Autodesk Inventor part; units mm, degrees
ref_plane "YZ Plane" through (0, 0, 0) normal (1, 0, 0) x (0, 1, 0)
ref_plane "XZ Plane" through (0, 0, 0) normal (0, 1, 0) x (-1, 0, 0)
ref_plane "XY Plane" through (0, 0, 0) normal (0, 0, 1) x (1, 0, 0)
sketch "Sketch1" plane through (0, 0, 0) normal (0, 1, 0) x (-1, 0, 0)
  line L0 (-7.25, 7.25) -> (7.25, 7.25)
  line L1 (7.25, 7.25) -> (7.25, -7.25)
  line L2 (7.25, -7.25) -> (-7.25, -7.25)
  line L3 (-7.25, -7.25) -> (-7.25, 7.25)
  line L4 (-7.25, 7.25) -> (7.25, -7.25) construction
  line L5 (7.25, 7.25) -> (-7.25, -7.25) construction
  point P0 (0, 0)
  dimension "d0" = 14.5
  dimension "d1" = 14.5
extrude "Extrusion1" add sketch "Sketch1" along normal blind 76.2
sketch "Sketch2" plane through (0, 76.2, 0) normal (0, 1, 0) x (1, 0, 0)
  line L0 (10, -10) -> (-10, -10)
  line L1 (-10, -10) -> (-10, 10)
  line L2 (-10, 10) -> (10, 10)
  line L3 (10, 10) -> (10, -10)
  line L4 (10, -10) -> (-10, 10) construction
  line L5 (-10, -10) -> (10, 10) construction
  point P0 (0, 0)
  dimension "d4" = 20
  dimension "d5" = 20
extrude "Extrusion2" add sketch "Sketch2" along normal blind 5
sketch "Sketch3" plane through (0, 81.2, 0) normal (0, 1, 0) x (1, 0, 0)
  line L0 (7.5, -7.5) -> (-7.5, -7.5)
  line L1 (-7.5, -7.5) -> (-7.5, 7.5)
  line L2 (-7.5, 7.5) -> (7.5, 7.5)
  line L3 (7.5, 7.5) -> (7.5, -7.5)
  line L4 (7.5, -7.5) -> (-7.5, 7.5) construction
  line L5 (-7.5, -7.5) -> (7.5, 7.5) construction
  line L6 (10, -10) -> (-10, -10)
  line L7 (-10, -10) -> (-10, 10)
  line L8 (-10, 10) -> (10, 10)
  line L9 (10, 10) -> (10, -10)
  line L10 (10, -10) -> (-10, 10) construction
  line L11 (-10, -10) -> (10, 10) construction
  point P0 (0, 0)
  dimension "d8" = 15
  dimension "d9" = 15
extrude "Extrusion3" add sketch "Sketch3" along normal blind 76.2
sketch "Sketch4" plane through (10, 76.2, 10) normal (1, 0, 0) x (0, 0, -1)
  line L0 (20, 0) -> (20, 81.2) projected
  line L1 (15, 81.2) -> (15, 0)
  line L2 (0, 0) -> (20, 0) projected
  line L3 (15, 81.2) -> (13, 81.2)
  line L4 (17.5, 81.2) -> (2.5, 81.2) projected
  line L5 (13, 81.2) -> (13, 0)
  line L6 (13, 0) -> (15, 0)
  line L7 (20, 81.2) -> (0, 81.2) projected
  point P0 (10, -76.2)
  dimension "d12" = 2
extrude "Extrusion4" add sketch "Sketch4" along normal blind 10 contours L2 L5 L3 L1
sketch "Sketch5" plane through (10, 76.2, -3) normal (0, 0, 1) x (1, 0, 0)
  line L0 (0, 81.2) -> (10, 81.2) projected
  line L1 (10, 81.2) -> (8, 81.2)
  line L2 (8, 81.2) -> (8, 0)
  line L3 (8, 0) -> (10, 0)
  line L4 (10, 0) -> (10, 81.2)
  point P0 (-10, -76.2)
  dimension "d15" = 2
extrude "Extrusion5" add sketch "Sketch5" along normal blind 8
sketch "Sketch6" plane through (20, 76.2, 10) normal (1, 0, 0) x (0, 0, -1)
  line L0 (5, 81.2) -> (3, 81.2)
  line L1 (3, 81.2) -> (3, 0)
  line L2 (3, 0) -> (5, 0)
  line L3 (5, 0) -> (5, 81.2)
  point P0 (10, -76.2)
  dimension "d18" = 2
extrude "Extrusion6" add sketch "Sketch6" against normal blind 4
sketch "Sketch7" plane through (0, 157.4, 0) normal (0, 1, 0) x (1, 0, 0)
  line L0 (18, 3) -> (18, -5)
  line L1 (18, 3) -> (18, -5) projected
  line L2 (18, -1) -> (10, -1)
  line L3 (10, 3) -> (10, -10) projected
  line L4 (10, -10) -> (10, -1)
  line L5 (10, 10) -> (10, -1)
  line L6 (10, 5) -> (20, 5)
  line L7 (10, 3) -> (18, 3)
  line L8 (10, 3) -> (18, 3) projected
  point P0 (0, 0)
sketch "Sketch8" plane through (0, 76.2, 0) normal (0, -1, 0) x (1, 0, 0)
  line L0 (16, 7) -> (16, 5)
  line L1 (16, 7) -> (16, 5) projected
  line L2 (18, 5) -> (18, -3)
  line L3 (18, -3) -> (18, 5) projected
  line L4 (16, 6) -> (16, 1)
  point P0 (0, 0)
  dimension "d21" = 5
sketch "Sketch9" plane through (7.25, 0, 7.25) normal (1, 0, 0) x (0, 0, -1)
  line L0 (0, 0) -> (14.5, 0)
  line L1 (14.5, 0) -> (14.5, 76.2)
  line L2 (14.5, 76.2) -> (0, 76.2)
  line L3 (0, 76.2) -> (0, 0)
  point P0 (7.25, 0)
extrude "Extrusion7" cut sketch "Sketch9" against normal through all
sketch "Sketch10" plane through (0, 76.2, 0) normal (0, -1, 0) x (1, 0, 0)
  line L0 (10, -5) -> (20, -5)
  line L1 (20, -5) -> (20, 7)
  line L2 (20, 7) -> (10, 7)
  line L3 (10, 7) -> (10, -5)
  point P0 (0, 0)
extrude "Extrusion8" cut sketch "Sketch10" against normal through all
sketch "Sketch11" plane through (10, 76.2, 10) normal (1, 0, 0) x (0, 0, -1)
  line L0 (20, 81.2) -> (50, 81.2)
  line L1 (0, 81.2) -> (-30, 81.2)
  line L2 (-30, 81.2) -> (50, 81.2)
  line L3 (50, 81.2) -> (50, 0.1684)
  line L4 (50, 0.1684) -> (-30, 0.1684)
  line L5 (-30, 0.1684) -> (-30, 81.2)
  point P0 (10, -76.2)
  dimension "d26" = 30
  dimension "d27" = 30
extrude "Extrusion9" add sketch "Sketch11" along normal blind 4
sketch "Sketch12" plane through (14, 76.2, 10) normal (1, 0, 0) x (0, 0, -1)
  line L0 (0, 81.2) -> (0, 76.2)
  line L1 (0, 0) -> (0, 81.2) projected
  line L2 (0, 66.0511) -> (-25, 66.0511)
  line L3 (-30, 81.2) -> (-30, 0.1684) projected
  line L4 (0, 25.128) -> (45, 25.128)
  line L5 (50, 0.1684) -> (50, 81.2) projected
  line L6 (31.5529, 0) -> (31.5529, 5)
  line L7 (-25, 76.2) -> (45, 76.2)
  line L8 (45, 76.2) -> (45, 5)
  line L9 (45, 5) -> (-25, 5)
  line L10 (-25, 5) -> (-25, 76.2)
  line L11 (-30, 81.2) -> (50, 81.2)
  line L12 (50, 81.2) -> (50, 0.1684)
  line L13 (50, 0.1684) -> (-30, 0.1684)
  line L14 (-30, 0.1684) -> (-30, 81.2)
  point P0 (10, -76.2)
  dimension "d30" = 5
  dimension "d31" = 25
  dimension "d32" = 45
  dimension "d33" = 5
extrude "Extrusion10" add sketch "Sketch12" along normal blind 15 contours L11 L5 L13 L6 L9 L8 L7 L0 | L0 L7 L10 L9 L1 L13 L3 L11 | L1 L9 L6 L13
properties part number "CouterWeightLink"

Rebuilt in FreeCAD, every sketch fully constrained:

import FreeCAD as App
import Part
import Sketcher

V = App.Vector
Q = App.Units.Quantity

doc = App.newDocument("Part")
body = doc.addObject("PartDesign::Body", "Body")

# Sketch on XZ plane
sketch1 = doc.addObject("Sketcher::SketchObject", "Sketch")
body.addObject(sketch1)
sketch1.AttachmentSupport = (doc.XZ_Plane, [""])
sketch1.MapMode = "FlatFace"
sketch1.addGeometry([
    Part.LineSegment(V(-7.25, 7.25, 0), V(7.25, 7.25, 0)),
    Part.LineSegment(V(7.25, 7.25, 0), V(7.25, -7.25, 0)),
    Part.LineSegment(V(7.25, -7.25, 0), V(-7.25, -7.25, 0)),
    Part.LineSegment(V(-7.25, -7.25, 0), V(-7.25, 7.25, 0)),
], False)
sketch1.addConstraint([
    Sketcher.Constraint("Coincident", 0, 2, 1, 1),
    Sketcher.Constraint("Coincident", 1, 2, 2, 1),
    Sketcher.Constraint("Coincident", 2, 2, 3, 1),
    Sketcher.Constraint("Coincident", 3, 2, 0, 1),
    Sketcher.Constraint("Horizontal", 0),
    Sketcher.Constraint("Vertical", 1),
    Sketcher.Constraint("Horizontal", 2),
    Sketcher.Constraint("Vertical", 3),
    Sketcher.Constraint("Symmetric", 0, 2, 2, 2, -1, 1),
    Sketcher.Constraint("Equal", 2, 1),
    Sketcher.Constraint("DistanceX", 0, 1, 0, 2, Q("14.5 mm")),
])
pad1 = doc.addObject("PartDesign::Pad", "Pad")
body.addObject(pad1)
pad1.Profile = sketch1
pad1.Length = 76.2
pad1.Reversed = True

# Sketch on XZ plane
sketch2 = doc.addObject("Sketcher::SketchObject", "Sketch001")
body.addObject(sketch2)
sketch2.AttachmentSupport = (doc.XZ_Plane, [""])
sketch2.MapMode = "FlatFace"
sketch2.AttachmentOffset = App.Placement(V(0, 0, -76.2), App.Rotation())
sketch2.addGeometry([
    Part.LineSegment(V(-10, 10, 0), V(10, 10, 0)),
    Part.LineSegment(V(10, 10, 0), V(10, -10, 0)),
    Part.LineSegment(V(10, -10, 0), V(-10, -10, 0)),
    Part.LineSegment(V(-10, -10, 0), V(-10, 10, 0)),
], False)
sketch2.addConstraint([
    Sketcher.Constraint("Coincident", 0, 2, 1, 1),
    Sketcher.Constraint("Coincident", 1, 2, 2, 1),
    Sketcher.Constraint("Coincident", 2, 2, 3, 1),
    Sketcher.Constraint("Coincident", 3, 2, 0, 1),
    Sketcher.Constraint("Horizontal", 0),
    Sketcher.Constraint("Vertical", 1),
    Sketcher.Constraint("Horizontal", 2),
    Sketcher.Constraint("Vertical", 3),
    Sketcher.Constraint("Symmetric", 0, 2, 2, 2, -1, 1),
    Sketcher.Constraint("Equal", 2, 1),
    Sketcher.Constraint("DistanceX", 0, 1, 0, 2, Q("20 mm")),
])
pad2 = doc.addObject("PartDesign::Pad", "Pad001")
body.addObject(pad2)
pad2.Profile = sketch2
pad2.Length = 5
pad2.Reversed = True

# Sketch on XZ plane
sketch3 = doc.addObject("Sketcher::SketchObject", "Sketch002")
body.addObject(sketch3)
sketch3.AttachmentSupport = (doc.XZ_Plane, [""])
sketch3.MapMode = "FlatFace"
sketch3.AttachmentOffset = App.Placement(V(0, 0, -81.2), App.Rotation())
sketch3.addGeometry([
    Part.LineSegment(V(-10, 10, 0), V(10, 10, 0)),  # 0
    Part.LineSegment(V(10, 10, 0), V(10, -10, 0)),  # 1
    Part.LineSegment(V(10, -10, 0), V(-10, -10, 0)),  # 2
    Part.LineSegment(V(-10, -10, 0), V(-10, 10, 0)),  # 3
    Part.LineSegment(V(7.5, -7.5, 0), V(7.5, 7.5, 0)),  # 4
    Part.LineSegment(V(7.5, 7.5, 0), V(-7.5, 7.5, 0)),  # 5
    Part.LineSegment(V(-7.5, 7.5, 0), V(-7.5, -7.5, 0)),  # 6
    Part.LineSegment(V(-7.5, -7.5, 0), V(7.5, -7.5, 0)),  # 7
], False)
sketch3.addConstraint([
    Sketcher.Constraint("Coincident", 0, 2, 1, 1),
    Sketcher.Constraint("Coincident", 1, 2, 2, 1),
    Sketcher.Constraint("Coincident", 2, 2, 3, 1),
    Sketcher.Constraint("Coincident", 3, 2, 0, 1),
    Sketcher.Constraint("Coincident", 4, 2, 5, 1),
    Sketcher.Constraint("Coincident", 5, 2, 6, 1),
    Sketcher.Constraint("Coincident", 6, 2, 7, 1),
    Sketcher.Constraint("Coincident", 7, 2, 4, 1),
    Sketcher.Constraint("Horizontal", 0),
    Sketcher.Constraint("Vertical", 1),
    Sketcher.Constraint("Horizontal", 2),
    Sketcher.Constraint("Vertical", 3),
    Sketcher.Constraint("Vertical", 4),
    Sketcher.Constraint("Horizontal", 5),
    Sketcher.Constraint("Vertical", 6),
    Sketcher.Constraint("Horizontal", 7),
    Sketcher.Constraint("Symmetric", 0, 2, 2, 2, -1, 1),
    Sketcher.Constraint("Symmetric", 4, 2, 6, 2, -1, 1),
    Sketcher.Constraint("Equal", 2, 1),
    Sketcher.Constraint("Equal", 7, 4),
    Sketcher.Constraint("DistanceX", 5, 2, 5, 1, Q("15 mm")),
    Sketcher.Constraint("DistanceX", 0, 1, 0, 2, Q("20 mm")),
])
pad3 = doc.addObject("PartDesign::Pad", "Pad002")
body.addObject(pad3)
pad3.Profile = sketch3
pad3.Length = 76.2
pad3.Reversed = True

# Sketch on YZ plane
sketch4 = doc.addObject("Sketcher::SketchObject", "Sketch003")
body.addObject(sketch4)
sketch4.AttachmentSupport = (doc.YZ_Plane, [""])
sketch4.MapMode = "FlatFace"
sketch4.AttachmentOffset = App.Placement(V(0, 0, 10), App.Rotation())
sketch4.addGeometry([
    Part.LineSegment(V(76.2, -3, 0), V(76.2, -5, 0)),
    Part.LineSegment(V(76.2, -5, 0), V(157.4, -5, 0)),
    Part.LineSegment(V(157.4, -5, 0), V(157.4, -3, 0)),
    Part.LineSegment(V(157.4, -3, 0), V(76.2, -3, 0)),
], False)
sketch4.addConstraint([
    Sketcher.Constraint("Coincident", 0, 2, 1, 1),
    Sketcher.Constraint("Coincident", 1, 2, 2, 1),
    Sketcher.Constraint("Coincident", 2, 2, 3, 1),
    Sketcher.Constraint("Coincident", 3, 2, 0, 1),
    Sketcher.Constraint("Vertical", 0),
    Sketcher.Constraint("Horizontal", 1),
    Sketcher.Constraint("Vertical", 2),
    Sketcher.Constraint("Horizontal", 3),
    Sketcher.Constraint("DistanceY", 0, 2, 0, 1, Q("2 mm")),
    Sketcher.Constraint("DistanceX", 1, 1, 1, 2, Q("81.2 mm")),
    Sketcher.Constraint("DistanceY", 0, 2, -1, 1, Q("5 mm")),
    Sketcher.Constraint("DistanceX", -1, 1, 0, 2, Q("76.2 mm")),
])
pad4 = doc.addObject("PartDesign::Pad", "Pad003")
body.addObject(pad4)
pad4.Profile = sketch4
pad4.Length = 10

# Sketch on XY plane
sketch5 = doc.addObject("Sketcher::SketchObject", "Sketch004")
body.addObject(sketch5)
sketch5.AttachmentSupport = (doc.XY_Plane, [""])
sketch5.MapMode = "FlatFace"
sketch5.AttachmentOffset = App.Placement(V(0, 0, -3), App.Rotation())
sketch5.addGeometry([
    Part.LineSegment(V(20, 157.4, 0), V(18, 157.4, 0)),
    Part.LineSegment(V(18, 157.4, 0), V(18, 76.2, 0)),
    Part.LineSegment(V(18, 76.2, 0), V(20, 76.2, 0)),
    Part.LineSegment(V(20, 76.2, 0), V(20, 157.4, 0)),
], False)
sketch5.addConstraint([
    Sketcher.Constraint("Coincident", 0, 2, 1, 1),
    Sketcher.Constraint("Coincident", 1, 2, 2, 1),
    Sketcher.Constraint("Coincident", 2, 2, 3, 1),
    Sketcher.Constraint("Coincident", 3, 2, 0, 1),
    Sketcher.Constraint("Horizontal", 0),
    Sketcher.Constraint("Vertical", 1),
    Sketcher.Constraint("Horizontal", 2),
    Sketcher.Constraint("Vertical", 3),
    Sketcher.Constraint("DistanceX", 0, 2, 0, 1, Q("2 mm")),
    Sketcher.Constraint("DistanceY", 1, 2, 1, 1, Q("81.2 mm")),
    Sketcher.Constraint("DistanceX", -1, 1, 0, 2, Q("18 mm")),
    Sketcher.Constraint("DistanceY", -1, 1, 0, 2, Q("157.4 mm")),
])
pad5 = doc.addObject("PartDesign::Pad", "Pad004")
body.addObject(pad5)
pad5.Profile = sketch5
pad5.Length = 8

# Sketch on YZ plane
sketch6 = doc.addObject("Sketcher::SketchObject", "Sketch005")
body.addObject(sketch6)
sketch6.AttachmentSupport = (doc.YZ_Plane, [""])
sketch6.MapMode = "FlatFace"
sketch6.AttachmentOffset = App.Placement(V(0, 0, 20), App.Rotation())
sketch6.addGeometry([
    Part.LineSegment(V(76.2, 5, 0), V(157.4, 5, 0)),
    Part.LineSegment(V(157.4, 5, 0), V(157.4, 7, 0)),
    Part.LineSegment(V(157.4, 7, 0), V(76.2, 7, 0)),
    Part.LineSegment(V(76.2, 7, 0), V(76.2, 5, 0)),
], False)
sketch6.addConstraint([
    Sketcher.Constraint("Coincident", 0, 2, 1, 1),
    Sketcher.Constraint("Coincident", 1, 2, 2, 1),
    Sketcher.Constraint("Coincident", 2, 2, 3, 1),
    Sketcher.Constraint("Coincident", 3, 2, 0, 1),
    Sketcher.Constraint("Horizontal", 0),
    Sketcher.Constraint("Vertical", 1),
    Sketcher.Constraint("Horizontal", 2),
    Sketcher.Constraint("Vertical", 3),
    Sketcher.Constraint("DistanceY", 1, 1, 1, 2, Q("2 mm")),
    Sketcher.Constraint("DistanceX", 0, 1, 0, 2, Q("81.2 mm")),
    Sketcher.Constraint("DistanceY", -1, 1, 0, 2, Q("5 mm")),
    Sketcher.Constraint("DistanceX", -1, 1, 0, 2, Q("157.4 mm")),
])
pad6 = doc.addObject("PartDesign::Pad", "Pad005")
body.addObject(pad6)
pad6.Profile = sketch6
pad6.Length = 4
pad6.Reversed = True

# Sketch on YZ plane
sketch7 = doc.addObject("Sketcher::SketchObject", "Sketch006")
body.addObject(sketch7)
sketch7.AttachmentSupport = (doc.YZ_Plane, [""])
sketch7.MapMode = "FlatFace"
sketch7.AttachmentOffset = App.Placement(V(0, 0, 7.25), App.Rotation())
sketch7.addGeometry([
    Part.LineSegment(V(76.2, 7.25, 0), V(0, 7.25, 0)),
    Part.LineSegment(V(0, 7.25, 0), V(0, -7.25, 0)),
    Part.LineSegment(V(0, -7.25, 0), V(76.2, -7.25, 0)),
    Part.LineSegment(V(76.2, -7.25, 0), V(76.2, 7.25, 0)),
], False)
sketch7.addConstraint([
    Sketcher.Constraint("Coincident", 0, 2, 1, 1),
    Sketcher.Constraint("Coincident", 1, 2, 2, 1),
    Sketcher.Constraint("Coincident", 2, 2, 3, 1),
    Sketcher.Constraint("Coincident", 3, 2, 0, 1),
    Sketcher.Constraint("Horizontal", 0),
    Sketcher.Constraint("Vertical", 1),
    Sketcher.Constraint("Horizontal", 2),
    Sketcher.Constraint("Vertical", 3),
    Sketcher.Constraint("Symmetric", 0, 2, 1, 2, -1, 1),
    Sketcher.Constraint("DistanceX", 0, 2, 0, 1, Q("76.2 mm")),
    Sketcher.Constraint("DistanceY", 1, 2, 1, 1, Q("14.5 mm")),
])
pocket1 = doc.addObject("PartDesign::Pocket", "Pocket")
body.addObject(pocket1)
pocket1.Profile = sketch7
pocket1.Type = "ThroughAll"

# Sketch on XZ plane
sketch8 = doc.addObject("Sketcher::SketchObject", "Sketch007")
body.addObject(sketch8)
sketch8.AttachmentSupport = (doc.XZ_Plane, [""])
sketch8.MapMode = "FlatFace"
sketch8.AttachmentOffset = App.Placement(V(0, 0, -76.2), App.Rotation())
sketch8.addGeometry([
    Part.LineSegment(V(10, 7, 0), V(10, -5, 0)),
    Part.LineSegment(V(10, -5, 0), V(20, -5, 0)),
    Part.LineSegment(V(20, -5, 0), V(20, 7, 0)),
    Part.LineSegment(V(20, 7, 0), V(10, 7, 0)),
], False)
sketch8.addConstraint([
    Sketcher.Constraint("Coincident", 0, 2, 1, 1),
    Sketcher.Constraint("Coincident", 1, 2, 2, 1),
    Sketcher.Constraint("Coincident", 2, 2, 3, 1),
    Sketcher.Constraint("Coincident", 3, 2, 0, 1),
    Sketcher.Constraint("Vertical", 0),
    Sketcher.Constraint("Horizontal", 1),
    Sketcher.Constraint("Vertical", 2),
    Sketcher.Constraint("Horizontal", 3),
    Sketcher.Constraint("DistanceX", 1, 1, 1, 2, Q("10 mm")),
    Sketcher.Constraint("DistanceY", 0, 2, 0, 1, Q("12 mm")),
    Sketcher.Constraint("DistanceX", -1, 1, 0, 2, Q("10 mm")),
    Sketcher.Constraint("DistanceY", 0, 2, -1, 1, Q("5 mm")),
])
pocket2 = doc.addObject("PartDesign::Pocket", "Pocket001")
body.addObject(pocket2)
pocket2.Profile = sketch8
pocket2.Type = "ThroughAll"

# Sketch on YZ plane
sketch9 = doc.addObject("Sketcher::SketchObject", "Sketch008")
body.addObject(sketch9)
sketch9.AttachmentSupport = (doc.YZ_Plane, [""])
sketch9.MapMode = "FlatFace"
sketch9.AttachmentOffset = App.Placement(V(0, 0, 10), App.Rotation())
sketch9.addGeometry([
    Part.LineSegment(V(157.4, -40, 0), V(157.4, 40, 0)),
    Part.LineSegment(V(157.4, 40, 0), V(76.3684, 40, 0)),
    Part.LineSegment(V(76.3684, 40, 0), V(76.3684, -40, 0)),
    Part.LineSegment(V(76.3684, -40, 0), V(157.4, -40, 0)),
], False)
sketch9.addConstraint([
    Sketcher.Constraint("Coincident", 0, 2, 1, 1),
    Sketcher.Constraint("Coincident", 1, 2, 2, 1),
    Sketcher.Constraint("Coincident", 2, 2, 3, 1),
    Sketcher.Constraint("Coincident", 3, 2, 0, 1),
    Sketcher.Constraint("Vertical", 0),
    Sketcher.Constraint("Horizontal", 1),
    Sketcher.Constraint("Vertical", 2),
    Sketcher.Constraint("Horizontal", 3),
    Sketcher.Constraint("DistanceY", 0, 1, 0, 2, Q("80 mm")),
    Sketcher.Constraint("DistanceY", -1, 1, 0, 2, Q("40 mm")),
    Sketcher.Constraint("DistanceX", -1, 1, 0, 2, Q("157.4 mm")),
    Sketcher.Constraint("DistanceX", 1, 2, 1, 1, Q("81.0316 mm")),
])
pad7 = doc.addObject("PartDesign::Pad", "Pad006")
body.addObject(pad7)
pad7.Profile = sketch9
pad7.Length = 4

# Sketch on YZ plane
sketch10 = doc.addObject("Sketcher::SketchObject", "Sketch009")
body.addObject(sketch10)
sketch10.AttachmentSupport = (doc.YZ_Plane, [""])
sketch10.MapMode = "FlatFace"
sketch10.AttachmentOffset = App.Placement(V(0, 0, 14), App.Rotation())
sketch10.addGeometry([
    Part.LineSegment(V(157.4, -40, 0), V(157.4, 40, 0)),  # 0
    Part.LineSegment(V(157.4, 40, 0), V(76.3684, 40, 0)),  # 1
    Part.LineSegment(V(76.3684, 40, 0), V(76.3684, -40, 0)),  # 2
    Part.LineSegment(V(76.3684, -40, 0), V(157.4, -40, 0)),  # 3
    Part.LineSegment(V(81.2, -35, 0), V(81.2, 35, 0)),  # 4
    Part.LineSegment(V(81.2, 35, 0), V(152.4, 35, 0)),  # 5
    Part.LineSegment(V(152.4, 35, 0), V(152.4, -35, 0)),  # 6
    Part.LineSegment(V(152.4, -35, 0), V(81.2, -35, 0)),  # 7
], False)
sketch10.addConstraint([
    Sketcher.Constraint("Coincident", 0, 2, 1, 1),
    Sketcher.Constraint("Coincident", 1, 2, 2, 1),
    Sketcher.Constraint("Coincident", 2, 2, 3, 1),
    Sketcher.Constraint("Coincident", 3, 2, 0, 1),
    Sketcher.Constraint("Coincident", 4, 2, 5, 1),
    Sketcher.Constraint("Coincident", 5, 2, 6, 1),
    Sketcher.Constraint("Coincident", 6, 2, 7, 1),
    Sketcher.Constraint("Coincident", 7, 2, 4, 1),
    Sketcher.Constraint("Vertical", 0),
    Sketcher.Constraint("Horizontal", 1),
    Sketcher.Constraint("Vertical", 2),
    Sketcher.Constraint("Horizontal", 3),
    Sketcher.Constraint("Vertical", 4),
    Sketcher.Constraint("Horizontal", 5),
    Sketcher.Constraint("Vertical", 6),
    Sketcher.Constraint("Horizontal", 7),
    Sketcher.Constraint("DistanceY", 4, 2, 1, 2, Q("5 mm")),
    Sketcher.Constraint("DistanceX", 5, 2, 0, 2, Q("5 mm")),
    Sketcher.Constraint("DistanceY", 3, 2, 6, 2, Q("5 mm")),
    Sketcher.Constraint("DistanceY", 0, 1, 0, 2, Q("80 mm")),
    Sketcher.Constraint("DistanceX", 5, 1, 5, 2, Q("71.2 mm")),
    Sketcher.Constraint("DistanceY", -1, 1, 0, 2, Q("40 mm")),
    Sketcher.Constraint("DistanceX", -1, 1, 0, 2, Q("157.4 mm")),
    Sketcher.Constraint("DistanceX", 1, 2, 1, 1, Q("81.0316 mm")),
])
pad8 = doc.addObject("PartDesign::Pad", "Pad007")
body.addObject(pad8)
pad8.Profile = sketch10
pad8.Length = 15

doc.recompute()
